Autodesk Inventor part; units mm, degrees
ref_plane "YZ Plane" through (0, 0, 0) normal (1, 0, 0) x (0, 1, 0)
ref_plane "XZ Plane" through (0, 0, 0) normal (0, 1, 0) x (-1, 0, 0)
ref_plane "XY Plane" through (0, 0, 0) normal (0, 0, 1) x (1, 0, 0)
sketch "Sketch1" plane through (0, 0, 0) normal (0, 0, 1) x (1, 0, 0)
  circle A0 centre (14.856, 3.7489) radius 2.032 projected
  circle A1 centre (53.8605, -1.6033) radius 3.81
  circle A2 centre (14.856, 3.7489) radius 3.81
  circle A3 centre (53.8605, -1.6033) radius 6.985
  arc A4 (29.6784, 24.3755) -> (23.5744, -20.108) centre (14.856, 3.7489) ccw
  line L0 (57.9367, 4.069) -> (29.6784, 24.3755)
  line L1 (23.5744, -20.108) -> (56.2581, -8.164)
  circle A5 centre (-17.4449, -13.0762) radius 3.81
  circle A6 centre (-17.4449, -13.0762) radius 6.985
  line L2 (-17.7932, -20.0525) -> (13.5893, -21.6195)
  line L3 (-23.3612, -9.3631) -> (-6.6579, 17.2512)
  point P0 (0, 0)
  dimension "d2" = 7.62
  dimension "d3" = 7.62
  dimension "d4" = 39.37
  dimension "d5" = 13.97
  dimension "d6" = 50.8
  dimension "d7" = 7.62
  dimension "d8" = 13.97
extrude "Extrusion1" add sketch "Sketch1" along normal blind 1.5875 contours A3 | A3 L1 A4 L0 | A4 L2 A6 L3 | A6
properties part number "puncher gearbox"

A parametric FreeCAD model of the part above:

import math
import FreeCAD as App
import Part
import Sketcher
from FreeCAD import Vector
Q = App.Units.Quantity

doc = App.newDocument("Part")
params = doc.addObject("Spreadsheet::Sheet", "Params")
for row, (alias, value) in enumerate([
    ("sketch1_radius", "1 in"),
    ("sketch1_diameter", "0.3 in"),
    ("sketch1_radius2", "0.275 in"),
    ("sketch1_length", "1.37 in"),
    ("sketch1_width", "0.847 in"),
    ("pad1_length", "0.0625 in"),
], start=1):
    params.set(f"A{row}", alias)
    params.set(f"B{row}", "=" + value)
    params.setAlias(f"B{row}", alias)

body = doc.addObject("PartDesign::Body", "Body")

# Sketch on XY plane
sketch1 = body.newObject("Sketcher::SketchObject", "Sketch")
sketch1.AttachmentSupport = (doc.getObject("XY_Plane"), [""])
sketch1.MapMode = "FlatFace"
sketch1.addGeometry([
    Part.ArcOfCircle(Part.Circle(Vector(53.8605, -1.6033, 0), Vector(0, 0, 1), 6.985), math.radians(-69.925229), math.radians(54.298408)),  # 0
    Part.LineSegment(Vector(57.9367, 4.069, 0), Vector(29.6784, 24.3755, 0)),  # 1
    Part.ArcOfCircle(Part.Circle(Vector(14.856, 3.7489, 0), Vector(0, 0, 1), 25.400003), math.radians(54.298746), math.radians(147.887281)),  # 2
    Part.LineSegment(Vector(-6.6579, 17.2512, 0), Vector(-23.3612, -9.3631, 0)),  # 3
    Part.ArcOfCircle(Part.Circle(Vector(-17.4449, -13.0762, 0), Vector(0, 0, 1), 6.985), math.radians(147.887409), math.radians(267.141814)),  # 4
    Part.LineSegment(Vector(-17.7932, -20.0525, 0), Vector(13.5893, -21.6195, 0)),  # 5
    Part.ArcOfCircle(Part.Circle(Vector(14.856, 3.7489, 0), Vector(0, 0, 1), 25.400003), math.radians(-92.85853), math.radians(-69.92539)),  # 6
    Part.LineSegment(Vector(23.5744, -20.108, 0), Vector(56.2581, -8.164, 0)),  # 7
    Part.Circle(Vector(53.8605, -1.6033, 0), Vector(0, 0, 1), 3.81),  # 8
    Part.Circle(Vector(14.856, 3.7489, 0), Vector(0, 0, 1), 3.81),  # 9
    Part.Circle(Vector(-17.4449, -13.0762, 0), Vector(0, 0, 1), 3.81),  # 10
], False)
sketch1.addConstraint([
    Sketcher.Constraint("Tangent", 0, 2, 1, 1),
    Sketcher.Constraint("Tangent", 1, 2, 2, 1),
    Sketcher.Constraint("Tangent", 2, 2, 3, 1),
    Sketcher.Constraint("Tangent", 3, 2, 4, 1),
    Sketcher.Constraint("Tangent", 4, 2, 5, 1),
    Sketcher.Constraint("Tangent", 5, 2, 6, 1),
    Sketcher.Constraint("Tangent", 6, 2, 7, 1),
    Sketcher.Constraint("Tangent", 7, 2, 0, 1),
    Sketcher.Constraint("Coincident", 6, 3, 2, 3),
    Sketcher.Constraint("Coincident", 8, 3, 0, 3),
    Sketcher.Constraint("Coincident", 9, 3, 2, 3),
    Sketcher.Constraint("Coincident", 10, 3, 4, 3),
    Sketcher.Constraint("Equal", 0, 4),
    Sketcher.Constraint("Equal", 2, 6),
    Sketcher.Constraint("Equal", 8, 9),
    Sketcher.Constraint("Equal", 9, 10),
    Sketcher.Constraint("Radius", 2, Q("1 in")),
    Sketcher.Constraint("Diameter", 8, Q("0.3 in")),
    Sketcher.Constraint("Radius", 0, Q("0.275 in")),
    Sketcher.Constraint("Angle", 1, Q("144.2989 deg")),
    Sketcher.Constraint("Distance", 1, Q("1.37 in")),
    Sketcher.Constraint("DistanceX", -1, 1, 5, 2, Q("0.535 in")),
    Sketcher.Constraint("DistanceX", 2, 2, 2, 3, Q("0.847 in")),
    Sketcher.Constraint("DistanceY", 4, 3, 2, 2, Q("1.194 in")),
    Sketcher.Constraint("DistanceY", -1, 1, 2, 3, Q("0.1476 in")),
])
sketch1.setExpression("Constraints[16]", "Params.sketch1_radius")
sketch1.setExpression("Constraints[17]", "Params.sketch1_diameter")
sketch1.setExpression("Constraints[18]", "Params.sketch1_radius2")
sketch1.setExpression("Constraints[20]", "Params.sketch1_length")
sketch1.setExpression("Constraints[22]", "Params.sketch1_width")
pad1 = body.newObject("PartDesign::Pad", "Pad")
pad1.Profile = sketch1
pad1.setExpression("Length", "Params.pad1_length")

doc.recompute()
